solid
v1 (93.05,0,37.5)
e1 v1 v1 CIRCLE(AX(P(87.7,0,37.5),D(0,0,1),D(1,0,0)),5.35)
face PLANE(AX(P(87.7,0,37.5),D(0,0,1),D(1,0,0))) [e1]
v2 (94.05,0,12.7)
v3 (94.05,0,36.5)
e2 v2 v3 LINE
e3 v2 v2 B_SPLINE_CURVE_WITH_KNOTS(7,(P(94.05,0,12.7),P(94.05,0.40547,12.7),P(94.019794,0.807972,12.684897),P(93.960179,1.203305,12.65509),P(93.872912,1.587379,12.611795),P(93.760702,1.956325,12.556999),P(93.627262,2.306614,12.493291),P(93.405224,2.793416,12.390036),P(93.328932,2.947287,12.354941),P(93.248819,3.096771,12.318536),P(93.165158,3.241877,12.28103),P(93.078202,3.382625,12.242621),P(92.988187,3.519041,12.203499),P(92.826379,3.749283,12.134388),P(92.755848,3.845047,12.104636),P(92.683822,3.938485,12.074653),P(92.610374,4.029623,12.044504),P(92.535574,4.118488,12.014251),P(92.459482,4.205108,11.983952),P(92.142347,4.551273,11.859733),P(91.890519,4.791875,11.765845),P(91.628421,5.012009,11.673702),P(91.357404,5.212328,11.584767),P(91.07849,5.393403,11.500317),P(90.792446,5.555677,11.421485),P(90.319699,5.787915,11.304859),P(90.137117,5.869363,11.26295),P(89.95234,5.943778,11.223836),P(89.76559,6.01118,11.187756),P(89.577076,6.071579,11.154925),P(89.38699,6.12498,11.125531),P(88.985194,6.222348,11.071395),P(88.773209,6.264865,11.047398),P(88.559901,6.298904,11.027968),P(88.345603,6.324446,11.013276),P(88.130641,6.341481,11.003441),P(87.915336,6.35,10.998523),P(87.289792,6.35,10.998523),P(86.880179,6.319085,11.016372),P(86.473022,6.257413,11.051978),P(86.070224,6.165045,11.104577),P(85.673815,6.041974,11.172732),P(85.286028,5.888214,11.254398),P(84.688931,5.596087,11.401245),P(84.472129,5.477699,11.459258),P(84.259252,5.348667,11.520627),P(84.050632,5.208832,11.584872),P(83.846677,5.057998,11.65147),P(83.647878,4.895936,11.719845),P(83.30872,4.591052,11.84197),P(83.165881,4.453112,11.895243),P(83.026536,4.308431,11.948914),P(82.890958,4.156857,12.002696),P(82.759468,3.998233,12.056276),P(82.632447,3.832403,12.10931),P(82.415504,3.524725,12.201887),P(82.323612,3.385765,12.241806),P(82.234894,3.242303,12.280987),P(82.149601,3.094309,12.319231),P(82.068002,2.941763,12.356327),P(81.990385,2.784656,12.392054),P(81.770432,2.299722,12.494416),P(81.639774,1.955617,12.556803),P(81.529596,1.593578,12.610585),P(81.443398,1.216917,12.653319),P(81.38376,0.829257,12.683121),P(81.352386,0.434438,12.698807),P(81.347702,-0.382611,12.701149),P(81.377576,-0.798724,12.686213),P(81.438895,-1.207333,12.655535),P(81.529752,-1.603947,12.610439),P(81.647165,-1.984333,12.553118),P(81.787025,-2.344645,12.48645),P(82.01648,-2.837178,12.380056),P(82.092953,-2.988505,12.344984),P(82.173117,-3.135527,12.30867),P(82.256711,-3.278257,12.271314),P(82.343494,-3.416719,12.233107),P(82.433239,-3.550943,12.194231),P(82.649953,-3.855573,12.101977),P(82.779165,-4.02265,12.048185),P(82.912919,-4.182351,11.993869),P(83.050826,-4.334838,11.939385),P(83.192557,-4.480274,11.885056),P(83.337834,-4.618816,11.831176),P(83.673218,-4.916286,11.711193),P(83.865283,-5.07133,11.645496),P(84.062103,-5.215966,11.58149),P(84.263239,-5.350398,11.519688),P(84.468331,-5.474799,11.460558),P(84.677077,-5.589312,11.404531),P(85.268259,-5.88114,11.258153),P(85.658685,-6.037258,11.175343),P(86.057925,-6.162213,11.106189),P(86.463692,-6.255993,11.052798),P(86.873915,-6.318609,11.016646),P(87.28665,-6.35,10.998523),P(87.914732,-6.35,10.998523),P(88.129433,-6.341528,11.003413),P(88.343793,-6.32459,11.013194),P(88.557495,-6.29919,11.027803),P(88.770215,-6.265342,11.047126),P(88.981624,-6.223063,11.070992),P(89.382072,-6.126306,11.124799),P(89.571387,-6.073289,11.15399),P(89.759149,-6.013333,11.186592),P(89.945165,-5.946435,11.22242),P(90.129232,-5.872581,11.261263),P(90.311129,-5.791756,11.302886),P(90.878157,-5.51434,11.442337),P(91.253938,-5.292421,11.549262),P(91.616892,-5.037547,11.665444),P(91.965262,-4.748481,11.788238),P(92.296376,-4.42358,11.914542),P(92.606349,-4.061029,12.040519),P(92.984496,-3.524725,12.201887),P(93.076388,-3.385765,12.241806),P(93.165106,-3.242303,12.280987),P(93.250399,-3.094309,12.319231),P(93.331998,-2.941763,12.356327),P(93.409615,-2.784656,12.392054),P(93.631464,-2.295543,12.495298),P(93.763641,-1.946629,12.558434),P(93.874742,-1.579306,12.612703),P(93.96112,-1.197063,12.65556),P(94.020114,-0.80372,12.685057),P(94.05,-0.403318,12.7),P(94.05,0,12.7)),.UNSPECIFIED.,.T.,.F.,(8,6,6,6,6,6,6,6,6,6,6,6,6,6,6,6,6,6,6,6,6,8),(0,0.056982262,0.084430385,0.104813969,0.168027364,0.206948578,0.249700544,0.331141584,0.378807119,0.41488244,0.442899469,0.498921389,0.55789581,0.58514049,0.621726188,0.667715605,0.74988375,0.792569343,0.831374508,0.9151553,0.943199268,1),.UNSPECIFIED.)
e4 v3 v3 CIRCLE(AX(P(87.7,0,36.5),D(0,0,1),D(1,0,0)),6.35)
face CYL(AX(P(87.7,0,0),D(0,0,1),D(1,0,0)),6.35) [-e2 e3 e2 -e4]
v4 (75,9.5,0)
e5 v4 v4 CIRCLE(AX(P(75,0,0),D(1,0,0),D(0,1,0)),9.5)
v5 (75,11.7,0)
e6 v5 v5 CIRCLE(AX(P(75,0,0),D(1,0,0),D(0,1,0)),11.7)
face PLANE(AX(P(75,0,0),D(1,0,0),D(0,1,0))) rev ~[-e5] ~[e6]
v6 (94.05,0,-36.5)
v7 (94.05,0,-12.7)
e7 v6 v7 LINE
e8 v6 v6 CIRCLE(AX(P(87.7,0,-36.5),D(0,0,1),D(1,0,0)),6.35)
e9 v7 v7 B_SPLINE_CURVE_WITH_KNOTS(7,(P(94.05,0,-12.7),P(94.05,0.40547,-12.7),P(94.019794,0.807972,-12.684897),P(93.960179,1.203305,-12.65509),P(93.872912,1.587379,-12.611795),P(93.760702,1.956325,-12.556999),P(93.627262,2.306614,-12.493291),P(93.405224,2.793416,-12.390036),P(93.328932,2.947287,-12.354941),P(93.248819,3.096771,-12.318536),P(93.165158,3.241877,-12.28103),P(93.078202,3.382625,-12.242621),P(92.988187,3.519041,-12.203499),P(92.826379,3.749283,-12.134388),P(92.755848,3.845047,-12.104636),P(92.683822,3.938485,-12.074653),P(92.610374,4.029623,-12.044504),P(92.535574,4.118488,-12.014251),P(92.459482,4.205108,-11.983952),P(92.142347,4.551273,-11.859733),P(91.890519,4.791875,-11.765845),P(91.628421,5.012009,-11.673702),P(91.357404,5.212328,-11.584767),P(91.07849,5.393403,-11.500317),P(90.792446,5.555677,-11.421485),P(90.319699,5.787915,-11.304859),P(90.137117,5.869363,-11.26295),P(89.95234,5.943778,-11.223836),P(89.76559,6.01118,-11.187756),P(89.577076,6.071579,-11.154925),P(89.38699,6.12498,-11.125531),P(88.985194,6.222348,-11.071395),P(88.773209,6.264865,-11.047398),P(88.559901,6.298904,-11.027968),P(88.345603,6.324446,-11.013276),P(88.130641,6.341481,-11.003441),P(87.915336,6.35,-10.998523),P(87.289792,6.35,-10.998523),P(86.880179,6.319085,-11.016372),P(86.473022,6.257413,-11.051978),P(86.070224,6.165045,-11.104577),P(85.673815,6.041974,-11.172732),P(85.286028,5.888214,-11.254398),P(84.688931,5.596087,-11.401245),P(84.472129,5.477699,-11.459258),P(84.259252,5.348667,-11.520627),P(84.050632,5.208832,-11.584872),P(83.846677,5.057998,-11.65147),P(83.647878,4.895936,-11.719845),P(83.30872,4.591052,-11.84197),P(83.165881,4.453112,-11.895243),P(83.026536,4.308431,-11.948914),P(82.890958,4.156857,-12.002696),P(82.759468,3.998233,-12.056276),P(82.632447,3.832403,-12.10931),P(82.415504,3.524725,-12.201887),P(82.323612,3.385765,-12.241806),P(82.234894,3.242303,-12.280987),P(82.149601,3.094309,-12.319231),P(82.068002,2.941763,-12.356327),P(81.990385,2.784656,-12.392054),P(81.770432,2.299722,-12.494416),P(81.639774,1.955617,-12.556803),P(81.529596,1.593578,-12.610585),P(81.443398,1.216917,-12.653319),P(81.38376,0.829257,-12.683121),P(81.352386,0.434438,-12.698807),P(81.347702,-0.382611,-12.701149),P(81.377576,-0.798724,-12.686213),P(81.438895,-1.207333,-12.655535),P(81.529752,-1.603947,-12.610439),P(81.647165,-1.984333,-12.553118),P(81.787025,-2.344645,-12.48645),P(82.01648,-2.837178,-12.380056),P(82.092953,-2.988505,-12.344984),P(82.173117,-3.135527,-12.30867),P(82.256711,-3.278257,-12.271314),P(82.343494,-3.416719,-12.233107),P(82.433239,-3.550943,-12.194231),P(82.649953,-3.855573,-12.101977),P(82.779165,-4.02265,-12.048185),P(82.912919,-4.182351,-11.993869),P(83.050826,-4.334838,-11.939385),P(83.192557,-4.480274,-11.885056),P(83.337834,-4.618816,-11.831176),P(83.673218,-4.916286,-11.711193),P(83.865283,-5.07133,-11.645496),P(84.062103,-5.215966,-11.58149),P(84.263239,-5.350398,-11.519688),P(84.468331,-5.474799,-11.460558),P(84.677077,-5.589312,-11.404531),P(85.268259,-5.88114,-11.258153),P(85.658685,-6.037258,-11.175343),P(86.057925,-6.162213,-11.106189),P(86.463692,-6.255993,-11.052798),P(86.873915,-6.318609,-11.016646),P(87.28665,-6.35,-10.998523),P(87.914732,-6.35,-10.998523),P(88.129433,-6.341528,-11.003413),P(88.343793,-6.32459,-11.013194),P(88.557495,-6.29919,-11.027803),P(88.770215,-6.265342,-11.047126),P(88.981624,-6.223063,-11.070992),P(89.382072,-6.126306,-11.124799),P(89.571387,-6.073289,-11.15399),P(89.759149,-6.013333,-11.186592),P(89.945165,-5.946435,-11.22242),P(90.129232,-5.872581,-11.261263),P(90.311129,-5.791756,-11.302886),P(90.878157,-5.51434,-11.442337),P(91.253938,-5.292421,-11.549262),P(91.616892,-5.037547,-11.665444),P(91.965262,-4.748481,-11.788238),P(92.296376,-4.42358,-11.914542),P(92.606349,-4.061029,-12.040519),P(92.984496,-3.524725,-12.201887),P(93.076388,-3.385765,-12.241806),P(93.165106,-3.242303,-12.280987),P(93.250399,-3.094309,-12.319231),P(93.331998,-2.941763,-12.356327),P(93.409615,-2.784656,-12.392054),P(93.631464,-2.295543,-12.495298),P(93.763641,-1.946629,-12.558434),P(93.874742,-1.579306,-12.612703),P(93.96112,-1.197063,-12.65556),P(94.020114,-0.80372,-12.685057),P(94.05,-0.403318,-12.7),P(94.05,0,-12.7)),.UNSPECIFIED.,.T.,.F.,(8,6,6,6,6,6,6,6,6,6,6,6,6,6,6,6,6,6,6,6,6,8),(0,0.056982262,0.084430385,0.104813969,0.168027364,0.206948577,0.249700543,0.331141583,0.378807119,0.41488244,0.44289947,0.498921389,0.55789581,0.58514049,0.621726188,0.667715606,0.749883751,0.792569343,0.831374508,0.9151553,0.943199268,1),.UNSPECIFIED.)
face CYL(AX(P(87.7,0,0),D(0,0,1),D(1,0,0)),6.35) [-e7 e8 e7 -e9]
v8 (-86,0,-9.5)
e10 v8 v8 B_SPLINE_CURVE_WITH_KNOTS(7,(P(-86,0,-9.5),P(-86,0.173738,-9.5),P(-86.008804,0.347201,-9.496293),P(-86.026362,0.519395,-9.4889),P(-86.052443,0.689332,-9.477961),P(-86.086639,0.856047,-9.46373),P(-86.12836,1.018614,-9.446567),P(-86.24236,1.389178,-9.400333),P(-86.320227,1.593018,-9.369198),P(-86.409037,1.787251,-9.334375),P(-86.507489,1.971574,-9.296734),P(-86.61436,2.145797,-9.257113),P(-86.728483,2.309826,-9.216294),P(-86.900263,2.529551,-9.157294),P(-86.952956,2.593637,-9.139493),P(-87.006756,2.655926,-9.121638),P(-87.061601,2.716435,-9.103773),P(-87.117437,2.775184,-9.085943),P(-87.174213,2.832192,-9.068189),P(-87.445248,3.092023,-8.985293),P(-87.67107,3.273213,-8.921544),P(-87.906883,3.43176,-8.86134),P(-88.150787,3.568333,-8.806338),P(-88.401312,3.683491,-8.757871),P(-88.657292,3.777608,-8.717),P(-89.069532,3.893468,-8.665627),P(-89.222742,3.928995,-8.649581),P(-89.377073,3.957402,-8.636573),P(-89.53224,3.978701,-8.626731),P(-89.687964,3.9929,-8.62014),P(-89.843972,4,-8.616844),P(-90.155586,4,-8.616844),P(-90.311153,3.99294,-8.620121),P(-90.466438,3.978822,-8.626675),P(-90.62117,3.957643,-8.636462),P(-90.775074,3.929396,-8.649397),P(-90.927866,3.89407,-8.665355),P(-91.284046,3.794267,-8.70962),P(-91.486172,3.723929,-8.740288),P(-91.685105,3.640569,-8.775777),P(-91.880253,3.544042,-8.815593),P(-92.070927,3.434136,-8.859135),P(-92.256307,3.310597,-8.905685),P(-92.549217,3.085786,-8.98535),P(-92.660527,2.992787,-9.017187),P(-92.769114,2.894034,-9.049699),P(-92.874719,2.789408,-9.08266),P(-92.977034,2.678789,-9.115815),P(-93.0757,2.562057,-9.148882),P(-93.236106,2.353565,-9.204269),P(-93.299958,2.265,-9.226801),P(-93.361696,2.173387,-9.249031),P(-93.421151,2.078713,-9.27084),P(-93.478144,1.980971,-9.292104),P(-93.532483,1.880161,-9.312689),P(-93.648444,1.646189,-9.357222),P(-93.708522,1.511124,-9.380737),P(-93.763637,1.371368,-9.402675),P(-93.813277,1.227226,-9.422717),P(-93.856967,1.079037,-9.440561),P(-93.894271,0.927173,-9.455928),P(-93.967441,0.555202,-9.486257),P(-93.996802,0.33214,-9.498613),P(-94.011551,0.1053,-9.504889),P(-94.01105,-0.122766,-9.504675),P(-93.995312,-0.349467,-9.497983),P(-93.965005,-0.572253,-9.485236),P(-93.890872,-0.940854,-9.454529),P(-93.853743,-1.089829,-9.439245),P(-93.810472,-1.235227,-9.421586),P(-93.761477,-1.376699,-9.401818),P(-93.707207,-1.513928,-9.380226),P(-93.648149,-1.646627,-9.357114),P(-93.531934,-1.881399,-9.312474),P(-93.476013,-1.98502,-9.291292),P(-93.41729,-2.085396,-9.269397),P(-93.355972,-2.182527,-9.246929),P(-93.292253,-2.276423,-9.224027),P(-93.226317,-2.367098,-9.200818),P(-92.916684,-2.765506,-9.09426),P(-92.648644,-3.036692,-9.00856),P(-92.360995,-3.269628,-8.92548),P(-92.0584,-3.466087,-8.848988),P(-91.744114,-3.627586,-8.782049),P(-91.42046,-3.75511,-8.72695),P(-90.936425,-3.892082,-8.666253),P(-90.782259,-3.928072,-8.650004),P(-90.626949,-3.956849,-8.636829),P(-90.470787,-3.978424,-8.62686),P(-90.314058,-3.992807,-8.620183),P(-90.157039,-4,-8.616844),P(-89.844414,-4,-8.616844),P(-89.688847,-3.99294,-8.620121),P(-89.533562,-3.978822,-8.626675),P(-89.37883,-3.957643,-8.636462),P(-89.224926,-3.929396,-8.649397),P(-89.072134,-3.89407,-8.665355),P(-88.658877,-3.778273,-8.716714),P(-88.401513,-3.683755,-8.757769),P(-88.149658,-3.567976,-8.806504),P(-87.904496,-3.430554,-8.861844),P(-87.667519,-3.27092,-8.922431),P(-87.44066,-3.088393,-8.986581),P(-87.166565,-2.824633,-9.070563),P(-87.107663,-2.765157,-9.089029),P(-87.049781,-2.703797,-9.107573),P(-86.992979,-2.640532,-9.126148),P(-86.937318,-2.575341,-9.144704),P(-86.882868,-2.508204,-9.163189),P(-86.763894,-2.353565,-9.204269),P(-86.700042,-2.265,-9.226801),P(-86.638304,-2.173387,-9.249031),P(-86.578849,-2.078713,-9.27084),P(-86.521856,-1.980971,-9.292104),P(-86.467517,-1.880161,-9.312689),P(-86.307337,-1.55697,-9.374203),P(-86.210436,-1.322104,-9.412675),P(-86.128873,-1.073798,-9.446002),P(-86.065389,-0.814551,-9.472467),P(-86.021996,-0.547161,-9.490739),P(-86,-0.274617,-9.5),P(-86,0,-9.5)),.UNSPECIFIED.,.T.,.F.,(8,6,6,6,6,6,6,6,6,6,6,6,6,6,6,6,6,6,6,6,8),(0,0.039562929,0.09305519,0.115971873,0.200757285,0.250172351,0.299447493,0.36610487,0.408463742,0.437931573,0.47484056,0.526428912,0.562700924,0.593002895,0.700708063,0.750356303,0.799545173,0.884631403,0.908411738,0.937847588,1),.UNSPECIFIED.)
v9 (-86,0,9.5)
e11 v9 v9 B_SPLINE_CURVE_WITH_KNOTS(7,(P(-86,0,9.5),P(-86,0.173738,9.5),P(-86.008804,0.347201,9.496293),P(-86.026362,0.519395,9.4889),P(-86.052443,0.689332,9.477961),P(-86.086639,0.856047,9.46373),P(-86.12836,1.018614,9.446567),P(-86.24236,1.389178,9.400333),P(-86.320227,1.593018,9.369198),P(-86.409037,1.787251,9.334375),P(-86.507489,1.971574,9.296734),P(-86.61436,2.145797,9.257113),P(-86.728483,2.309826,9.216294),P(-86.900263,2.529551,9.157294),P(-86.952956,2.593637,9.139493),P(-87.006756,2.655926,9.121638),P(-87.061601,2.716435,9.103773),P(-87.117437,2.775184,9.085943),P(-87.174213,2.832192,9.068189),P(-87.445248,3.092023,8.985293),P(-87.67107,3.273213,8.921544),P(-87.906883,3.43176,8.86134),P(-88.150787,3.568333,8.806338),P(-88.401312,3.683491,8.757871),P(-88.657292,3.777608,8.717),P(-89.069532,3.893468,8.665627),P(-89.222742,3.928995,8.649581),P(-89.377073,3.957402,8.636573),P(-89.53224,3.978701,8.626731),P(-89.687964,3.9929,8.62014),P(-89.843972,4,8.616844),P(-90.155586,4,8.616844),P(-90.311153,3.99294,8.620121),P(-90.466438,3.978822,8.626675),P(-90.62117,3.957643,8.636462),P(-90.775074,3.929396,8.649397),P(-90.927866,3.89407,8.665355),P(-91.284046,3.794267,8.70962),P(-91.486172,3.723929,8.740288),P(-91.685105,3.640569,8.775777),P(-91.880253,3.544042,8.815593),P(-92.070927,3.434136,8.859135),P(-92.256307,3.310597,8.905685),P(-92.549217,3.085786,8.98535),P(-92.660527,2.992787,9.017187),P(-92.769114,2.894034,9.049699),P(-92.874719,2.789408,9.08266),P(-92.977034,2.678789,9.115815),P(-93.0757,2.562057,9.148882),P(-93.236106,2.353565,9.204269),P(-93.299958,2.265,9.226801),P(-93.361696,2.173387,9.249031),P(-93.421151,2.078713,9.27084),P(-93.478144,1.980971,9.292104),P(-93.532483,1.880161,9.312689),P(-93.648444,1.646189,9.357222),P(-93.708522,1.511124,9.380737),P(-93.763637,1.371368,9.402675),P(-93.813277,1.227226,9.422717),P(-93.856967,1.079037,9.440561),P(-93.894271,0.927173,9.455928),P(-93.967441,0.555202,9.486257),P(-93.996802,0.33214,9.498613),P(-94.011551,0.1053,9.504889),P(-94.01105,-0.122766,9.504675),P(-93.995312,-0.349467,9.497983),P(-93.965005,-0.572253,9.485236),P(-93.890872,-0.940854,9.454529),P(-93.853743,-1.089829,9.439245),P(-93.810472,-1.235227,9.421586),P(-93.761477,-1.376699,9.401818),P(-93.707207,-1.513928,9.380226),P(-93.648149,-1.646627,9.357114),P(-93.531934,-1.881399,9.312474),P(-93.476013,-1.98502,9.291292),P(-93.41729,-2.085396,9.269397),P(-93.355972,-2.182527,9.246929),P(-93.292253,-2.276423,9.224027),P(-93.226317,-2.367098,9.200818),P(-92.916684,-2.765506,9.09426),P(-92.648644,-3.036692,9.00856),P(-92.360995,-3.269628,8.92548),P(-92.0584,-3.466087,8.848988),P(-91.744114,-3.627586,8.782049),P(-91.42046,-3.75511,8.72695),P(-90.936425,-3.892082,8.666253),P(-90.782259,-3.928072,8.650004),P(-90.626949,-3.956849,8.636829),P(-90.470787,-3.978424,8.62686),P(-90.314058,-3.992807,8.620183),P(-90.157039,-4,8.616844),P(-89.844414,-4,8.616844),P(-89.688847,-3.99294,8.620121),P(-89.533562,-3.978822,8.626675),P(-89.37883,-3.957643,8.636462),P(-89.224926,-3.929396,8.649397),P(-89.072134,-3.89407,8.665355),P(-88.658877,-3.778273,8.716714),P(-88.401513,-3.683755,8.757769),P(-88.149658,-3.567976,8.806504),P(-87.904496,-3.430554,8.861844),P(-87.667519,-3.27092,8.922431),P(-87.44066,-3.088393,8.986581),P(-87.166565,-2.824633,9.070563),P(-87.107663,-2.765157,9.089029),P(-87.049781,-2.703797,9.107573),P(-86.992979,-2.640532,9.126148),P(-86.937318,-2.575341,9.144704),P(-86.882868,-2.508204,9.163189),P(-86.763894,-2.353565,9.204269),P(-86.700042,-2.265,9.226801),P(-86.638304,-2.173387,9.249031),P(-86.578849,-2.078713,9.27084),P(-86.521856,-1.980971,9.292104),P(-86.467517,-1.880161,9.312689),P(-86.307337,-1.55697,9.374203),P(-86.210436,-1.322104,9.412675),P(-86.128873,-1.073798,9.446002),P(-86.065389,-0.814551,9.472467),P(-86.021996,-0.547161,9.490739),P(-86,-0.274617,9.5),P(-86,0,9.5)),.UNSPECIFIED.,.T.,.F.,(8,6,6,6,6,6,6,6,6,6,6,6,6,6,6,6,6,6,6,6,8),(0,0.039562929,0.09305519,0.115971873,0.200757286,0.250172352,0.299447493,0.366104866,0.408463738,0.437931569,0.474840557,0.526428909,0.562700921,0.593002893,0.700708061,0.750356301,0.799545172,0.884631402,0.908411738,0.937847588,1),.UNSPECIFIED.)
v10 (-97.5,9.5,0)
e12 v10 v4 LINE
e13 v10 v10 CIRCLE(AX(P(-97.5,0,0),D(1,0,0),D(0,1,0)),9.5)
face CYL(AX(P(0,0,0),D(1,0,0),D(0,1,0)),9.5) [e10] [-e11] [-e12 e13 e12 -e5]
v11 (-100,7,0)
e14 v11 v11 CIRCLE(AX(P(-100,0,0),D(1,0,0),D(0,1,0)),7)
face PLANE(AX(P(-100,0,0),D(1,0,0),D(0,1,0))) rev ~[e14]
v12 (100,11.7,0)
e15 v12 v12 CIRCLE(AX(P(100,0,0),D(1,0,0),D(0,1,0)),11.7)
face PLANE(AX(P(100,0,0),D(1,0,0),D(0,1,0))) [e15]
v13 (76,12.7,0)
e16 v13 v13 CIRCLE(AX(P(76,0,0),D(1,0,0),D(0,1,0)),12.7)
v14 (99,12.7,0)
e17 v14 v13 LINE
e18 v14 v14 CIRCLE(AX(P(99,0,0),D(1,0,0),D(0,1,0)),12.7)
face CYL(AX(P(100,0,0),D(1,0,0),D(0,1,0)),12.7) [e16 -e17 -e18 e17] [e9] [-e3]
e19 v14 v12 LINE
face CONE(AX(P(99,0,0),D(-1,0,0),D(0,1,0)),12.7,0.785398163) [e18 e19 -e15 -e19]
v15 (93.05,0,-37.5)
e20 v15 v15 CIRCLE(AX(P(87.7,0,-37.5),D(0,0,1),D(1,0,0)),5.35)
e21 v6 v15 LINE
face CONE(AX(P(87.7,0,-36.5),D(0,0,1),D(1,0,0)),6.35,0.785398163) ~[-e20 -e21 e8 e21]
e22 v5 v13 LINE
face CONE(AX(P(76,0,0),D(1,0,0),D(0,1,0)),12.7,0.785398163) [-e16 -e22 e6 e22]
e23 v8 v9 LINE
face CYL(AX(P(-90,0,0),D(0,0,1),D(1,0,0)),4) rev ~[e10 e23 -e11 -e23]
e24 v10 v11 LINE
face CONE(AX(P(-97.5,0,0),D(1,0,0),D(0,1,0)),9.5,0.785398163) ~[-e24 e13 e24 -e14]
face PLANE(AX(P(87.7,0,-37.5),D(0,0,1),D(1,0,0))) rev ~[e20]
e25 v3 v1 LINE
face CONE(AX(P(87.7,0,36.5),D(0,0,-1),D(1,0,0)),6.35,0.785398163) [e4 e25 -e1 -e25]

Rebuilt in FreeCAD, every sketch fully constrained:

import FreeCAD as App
import Part
import Sketcher

V = App.Vector
Q = App.Units.Quantity


def edges_at(feature, points):
    """Names of the edges that pass closest to the given points."""
    edges = feature.Shape.Edges
    near = lambda p: min(range(len(edges)), key=lambda i: edges[i].distToShape(Part.Vertex(*p))[0])
    return sorted({f"Edge{near(p) + 1}" for p in points})

doc = App.newDocument("Part")
body = doc.addObject("PartDesign::Body", "Body")

sketch1 = doc.addObject("Sketcher::SketchObject", "Sketch")
body.addObject(sketch1)
sketch1.AttachmentSupport = (doc.YZ_Plane, [""])
sketch1.MapMode = "FlatFace"
sketch1.addGeometry(Part.Circle(V(0, 0, 0), V(0, 0, 1), 9.5), False)
sketch1.addConstraint(Sketcher.Constraint("Coincident", 0, 3, -1, 1))
sketch1.addConstraint(Sketcher.Constraint("Diameter", 0, Q("19 mm")))
pad1 = doc.addObject("PartDesign::Pad", "Pad")
body.addObject(pad1)
pad1.Profile = sketch1
pad1.Length = 200
pad1.Midplane = True

sketch2 = doc.addObject("Sketcher::SketchObject", "Sketch001")
body.addObject(sketch2)
sketch2.AttachmentSupport = (doc.YZ_Plane, [""])
sketch2.MapMode = "FlatFace"
sketch2.AttachmentOffset = App.Placement(V(0, 0, 100), App.Rotation())
sketch2.addGeometry(Part.Circle(V(0, 0, 0), V(0, 0, 1), 12.7), False)
sketch2.addGeometry(Part.Circle(V(0, 0, 0), V(0, 0, 1), 9.5), False)
sketch2.addConstraint(Sketcher.Constraint("Coincident", 0, 3, -1, 1))
sketch2.addConstraint(Sketcher.Constraint("Coincident", 1, 3, -1, 1))
sketch2.addConstraint(Sketcher.Constraint("Diameter", 1, Q("19 mm")))
sketch2.addConstraint(Sketcher.Constraint("Diameter", 0, Q("25.4 mm")))
pad2 = doc.addObject("PartDesign::Pad", "Pad001")
body.addObject(pad2)
pad2.Profile = sketch2
pad2.Length = 25
pad2.Reversed = True

sketch3 = doc.addObject("Sketcher::SketchObject", "Sketch002")
body.addObject(sketch3)
sketch3.AttachmentSupport = (doc.XY_Plane, [""])
sketch3.MapMode = "FlatFace"
sketch3.addGeometry(Part.Circle(V(87.7, 0, 0), V(0, 0, 1), 6.35), False)
sketch3.addConstraint(Sketcher.Constraint("PointOnObject", 0, 3, -1))
sketch3.addConstraint(Sketcher.Constraint("Diameter", 0, Q("12.7 mm")))
sketch3.addConstraint(Sketcher.Constraint("DistanceX", -1, 1, 0, 3, Q("87.7 mm")))
pad3 = doc.addObject("PartDesign::Pad", "Pad002")
body.addObject(pad3)
pad3.Profile = sketch3
pad3.Length = 75
pad3.Midplane = True

sketch4 = doc.addObject("Sketcher::SketchObject", "Sketch003")
body.addObject(sketch4)
sketch4.AttachmentSupport = (doc.XY_Plane, [""])
sketch4.MapMode = "FlatFace"
sketch4.addGeometry(Part.Circle(V(-90, 0, 0), V(0, 0, 1), 4), False)
sketch4.addConstraint(Sketcher.Constraint("PointOnObject", 0, 3, -1))
sketch4.addConstraint(Sketcher.Constraint("Diameter", 0, Q("8 mm")))
sketch4.addConstraint(Sketcher.Constraint("DistanceX", 0, 3, -1, 1, Q("90 mm")))
pocket1 = doc.addObject("PartDesign::Pocket", "Pocket")
body.addObject(pocket1)
pocket1.Profile = sketch4
pocket1.Length = 25
pocket1.Midplane = True
doc.recompute()

chamfer = doc.addObject("PartDesign::Chamfer", "Chamfer")
body.addObject(chamfer)
chamfer.Base = (pocket1, edges_at(pocket1, [(-100, -9.5, 0)]))
chamfer.Size = 2.5
doc.recompute()

chamfer2 = doc.addObject("PartDesign::Chamfer", "Chamfer001")
body.addObject(chamfer2)
chamfer2.Base = (chamfer, edges_at(chamfer, [
    (75, -12.7, 0),
    (100, -12.7, 0),
    (81.35, 0, -37.5),
    (81.35, 0, 37.5),
]))
chamfer2.Size = 1

doc.recompute()
